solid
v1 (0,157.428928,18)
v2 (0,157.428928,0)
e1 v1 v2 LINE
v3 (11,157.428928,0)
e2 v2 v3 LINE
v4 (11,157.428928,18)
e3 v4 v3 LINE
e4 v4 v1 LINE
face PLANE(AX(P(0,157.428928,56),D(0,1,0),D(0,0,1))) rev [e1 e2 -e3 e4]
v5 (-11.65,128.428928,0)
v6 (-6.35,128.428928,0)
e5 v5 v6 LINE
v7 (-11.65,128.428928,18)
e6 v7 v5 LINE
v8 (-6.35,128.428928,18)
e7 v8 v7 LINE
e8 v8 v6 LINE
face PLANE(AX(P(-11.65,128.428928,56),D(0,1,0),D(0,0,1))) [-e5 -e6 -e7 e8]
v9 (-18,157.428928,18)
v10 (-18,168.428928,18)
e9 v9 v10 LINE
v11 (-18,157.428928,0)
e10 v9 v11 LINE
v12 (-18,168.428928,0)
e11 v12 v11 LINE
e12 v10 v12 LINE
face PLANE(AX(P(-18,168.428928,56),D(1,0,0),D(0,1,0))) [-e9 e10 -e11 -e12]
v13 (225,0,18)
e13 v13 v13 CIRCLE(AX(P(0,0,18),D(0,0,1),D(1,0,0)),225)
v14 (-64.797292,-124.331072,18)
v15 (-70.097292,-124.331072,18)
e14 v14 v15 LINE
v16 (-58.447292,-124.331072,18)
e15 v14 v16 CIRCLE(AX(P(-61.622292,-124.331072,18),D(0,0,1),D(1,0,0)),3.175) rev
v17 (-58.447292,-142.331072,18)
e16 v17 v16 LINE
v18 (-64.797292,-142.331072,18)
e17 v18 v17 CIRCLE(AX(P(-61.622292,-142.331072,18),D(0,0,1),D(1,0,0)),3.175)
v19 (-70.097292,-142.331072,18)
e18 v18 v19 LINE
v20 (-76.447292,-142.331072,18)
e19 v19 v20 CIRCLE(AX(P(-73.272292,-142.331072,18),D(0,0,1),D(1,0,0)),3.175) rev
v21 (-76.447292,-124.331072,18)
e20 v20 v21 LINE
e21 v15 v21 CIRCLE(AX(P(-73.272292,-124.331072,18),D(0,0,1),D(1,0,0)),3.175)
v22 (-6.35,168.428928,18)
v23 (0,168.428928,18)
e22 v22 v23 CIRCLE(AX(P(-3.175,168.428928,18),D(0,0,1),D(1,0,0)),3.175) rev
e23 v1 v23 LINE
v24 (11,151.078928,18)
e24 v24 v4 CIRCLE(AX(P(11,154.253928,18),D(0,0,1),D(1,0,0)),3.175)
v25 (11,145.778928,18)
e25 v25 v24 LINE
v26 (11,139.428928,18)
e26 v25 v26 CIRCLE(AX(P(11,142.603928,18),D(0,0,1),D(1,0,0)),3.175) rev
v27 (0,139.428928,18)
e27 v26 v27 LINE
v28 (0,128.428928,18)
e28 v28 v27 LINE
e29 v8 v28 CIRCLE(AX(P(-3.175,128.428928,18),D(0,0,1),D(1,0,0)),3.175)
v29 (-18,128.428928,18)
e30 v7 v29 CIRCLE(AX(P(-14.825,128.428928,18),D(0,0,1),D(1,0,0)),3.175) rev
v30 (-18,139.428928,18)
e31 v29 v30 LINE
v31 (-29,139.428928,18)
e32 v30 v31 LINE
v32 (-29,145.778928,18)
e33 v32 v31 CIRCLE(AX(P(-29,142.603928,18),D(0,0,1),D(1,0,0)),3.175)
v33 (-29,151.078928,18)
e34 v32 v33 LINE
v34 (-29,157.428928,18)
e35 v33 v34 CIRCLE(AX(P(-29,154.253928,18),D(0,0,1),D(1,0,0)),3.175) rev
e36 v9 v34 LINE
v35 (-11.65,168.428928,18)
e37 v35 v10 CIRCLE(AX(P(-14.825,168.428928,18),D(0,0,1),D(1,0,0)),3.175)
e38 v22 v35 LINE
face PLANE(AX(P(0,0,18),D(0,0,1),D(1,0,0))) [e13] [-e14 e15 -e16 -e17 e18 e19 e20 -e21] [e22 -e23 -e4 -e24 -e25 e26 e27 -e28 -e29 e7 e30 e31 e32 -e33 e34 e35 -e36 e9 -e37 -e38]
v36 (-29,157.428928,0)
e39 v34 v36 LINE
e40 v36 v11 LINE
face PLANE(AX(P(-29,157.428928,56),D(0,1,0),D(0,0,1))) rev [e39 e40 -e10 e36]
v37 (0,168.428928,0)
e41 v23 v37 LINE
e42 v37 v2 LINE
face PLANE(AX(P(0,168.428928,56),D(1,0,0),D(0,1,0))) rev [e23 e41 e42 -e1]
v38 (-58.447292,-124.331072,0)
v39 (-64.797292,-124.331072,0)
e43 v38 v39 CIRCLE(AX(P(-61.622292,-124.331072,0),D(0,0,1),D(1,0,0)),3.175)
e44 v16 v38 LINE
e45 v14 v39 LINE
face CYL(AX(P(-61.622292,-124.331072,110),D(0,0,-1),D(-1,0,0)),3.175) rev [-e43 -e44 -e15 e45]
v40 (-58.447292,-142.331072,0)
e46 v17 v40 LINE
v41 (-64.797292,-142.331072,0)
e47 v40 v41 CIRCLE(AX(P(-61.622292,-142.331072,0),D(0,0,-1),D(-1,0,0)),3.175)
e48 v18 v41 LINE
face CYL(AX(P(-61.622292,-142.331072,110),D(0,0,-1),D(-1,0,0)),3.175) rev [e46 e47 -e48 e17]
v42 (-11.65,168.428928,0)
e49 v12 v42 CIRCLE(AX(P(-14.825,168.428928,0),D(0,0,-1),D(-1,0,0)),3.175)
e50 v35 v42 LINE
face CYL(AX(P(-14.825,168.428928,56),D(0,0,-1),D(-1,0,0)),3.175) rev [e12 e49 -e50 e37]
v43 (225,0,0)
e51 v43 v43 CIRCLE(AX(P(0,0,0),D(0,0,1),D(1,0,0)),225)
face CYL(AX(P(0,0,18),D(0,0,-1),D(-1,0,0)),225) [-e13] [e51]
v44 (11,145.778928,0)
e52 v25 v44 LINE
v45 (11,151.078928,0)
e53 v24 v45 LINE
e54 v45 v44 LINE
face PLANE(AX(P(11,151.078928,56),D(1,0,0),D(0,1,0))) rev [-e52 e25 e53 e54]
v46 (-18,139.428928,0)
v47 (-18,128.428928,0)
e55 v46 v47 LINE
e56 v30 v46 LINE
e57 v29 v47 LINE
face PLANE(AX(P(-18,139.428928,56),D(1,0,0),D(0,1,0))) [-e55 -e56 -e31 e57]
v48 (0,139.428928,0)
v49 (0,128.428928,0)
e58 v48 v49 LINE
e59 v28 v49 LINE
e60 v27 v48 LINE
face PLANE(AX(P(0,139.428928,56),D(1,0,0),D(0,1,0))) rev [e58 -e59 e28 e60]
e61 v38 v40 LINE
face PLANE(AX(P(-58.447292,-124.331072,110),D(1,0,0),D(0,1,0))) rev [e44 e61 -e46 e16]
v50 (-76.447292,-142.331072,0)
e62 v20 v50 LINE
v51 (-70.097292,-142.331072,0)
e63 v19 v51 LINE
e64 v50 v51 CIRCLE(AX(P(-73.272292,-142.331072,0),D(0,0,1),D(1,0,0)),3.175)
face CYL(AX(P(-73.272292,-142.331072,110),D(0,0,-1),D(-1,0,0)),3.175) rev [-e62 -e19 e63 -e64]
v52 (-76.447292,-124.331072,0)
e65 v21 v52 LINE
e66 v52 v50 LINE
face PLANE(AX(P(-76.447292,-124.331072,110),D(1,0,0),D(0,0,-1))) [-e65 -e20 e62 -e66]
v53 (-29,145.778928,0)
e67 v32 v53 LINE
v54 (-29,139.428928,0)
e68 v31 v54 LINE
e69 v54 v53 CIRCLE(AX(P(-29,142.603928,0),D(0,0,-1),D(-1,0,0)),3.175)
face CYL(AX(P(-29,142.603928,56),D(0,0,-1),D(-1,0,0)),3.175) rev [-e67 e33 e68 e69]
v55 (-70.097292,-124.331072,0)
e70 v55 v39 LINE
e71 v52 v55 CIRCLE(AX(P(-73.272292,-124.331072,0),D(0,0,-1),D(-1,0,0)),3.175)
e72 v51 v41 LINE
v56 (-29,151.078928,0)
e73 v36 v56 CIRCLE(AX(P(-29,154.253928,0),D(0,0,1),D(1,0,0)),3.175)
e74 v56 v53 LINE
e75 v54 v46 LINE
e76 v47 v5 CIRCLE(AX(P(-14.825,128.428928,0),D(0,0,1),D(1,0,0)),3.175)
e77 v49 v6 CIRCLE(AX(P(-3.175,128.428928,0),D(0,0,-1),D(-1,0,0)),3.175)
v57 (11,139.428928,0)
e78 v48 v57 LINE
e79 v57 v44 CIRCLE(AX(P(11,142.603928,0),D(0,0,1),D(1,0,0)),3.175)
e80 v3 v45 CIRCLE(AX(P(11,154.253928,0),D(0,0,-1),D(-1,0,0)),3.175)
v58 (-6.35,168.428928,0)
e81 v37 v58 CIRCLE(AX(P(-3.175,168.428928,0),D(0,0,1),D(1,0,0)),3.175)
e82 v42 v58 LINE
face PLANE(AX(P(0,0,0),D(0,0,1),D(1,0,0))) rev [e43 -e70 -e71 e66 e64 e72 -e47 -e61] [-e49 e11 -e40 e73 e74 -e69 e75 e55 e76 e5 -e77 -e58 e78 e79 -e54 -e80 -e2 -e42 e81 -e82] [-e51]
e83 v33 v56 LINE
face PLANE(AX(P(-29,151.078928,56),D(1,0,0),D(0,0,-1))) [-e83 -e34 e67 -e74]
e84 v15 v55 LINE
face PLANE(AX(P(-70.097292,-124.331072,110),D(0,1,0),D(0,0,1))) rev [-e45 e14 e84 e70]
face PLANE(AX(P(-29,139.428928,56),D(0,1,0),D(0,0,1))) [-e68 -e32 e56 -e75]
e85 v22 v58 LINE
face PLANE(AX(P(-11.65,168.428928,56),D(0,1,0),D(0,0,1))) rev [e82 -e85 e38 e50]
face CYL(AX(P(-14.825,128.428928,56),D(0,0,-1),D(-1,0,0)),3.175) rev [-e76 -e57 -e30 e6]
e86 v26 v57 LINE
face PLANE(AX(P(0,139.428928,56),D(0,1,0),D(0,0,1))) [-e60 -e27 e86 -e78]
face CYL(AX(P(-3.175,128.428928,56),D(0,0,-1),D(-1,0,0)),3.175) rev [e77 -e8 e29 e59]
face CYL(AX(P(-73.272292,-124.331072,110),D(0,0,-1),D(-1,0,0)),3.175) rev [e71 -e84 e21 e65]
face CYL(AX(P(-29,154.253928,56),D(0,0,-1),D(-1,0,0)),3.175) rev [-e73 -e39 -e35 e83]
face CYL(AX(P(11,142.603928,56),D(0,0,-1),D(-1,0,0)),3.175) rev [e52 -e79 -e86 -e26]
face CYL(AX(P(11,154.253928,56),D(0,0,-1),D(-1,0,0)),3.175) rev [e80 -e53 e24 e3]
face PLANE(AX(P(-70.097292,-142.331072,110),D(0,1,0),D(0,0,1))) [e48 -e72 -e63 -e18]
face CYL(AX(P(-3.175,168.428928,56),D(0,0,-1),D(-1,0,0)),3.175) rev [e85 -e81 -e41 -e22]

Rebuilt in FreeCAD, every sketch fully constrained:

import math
import FreeCAD as App
import Part
import Sketcher

V = App.Vector
Q = App.Units.Quantity

doc = App.newDocument("Part")
body = doc.addObject("PartDesign::Body", "Body")

# Sketch on XY plane
sketch1 = body.newObject("Sketcher::SketchObject", "Sketch")
sketch1.AttachmentSupport = (doc.getObject("XY_Plane"), [""])
sketch1.MapMode = "FlatFace"
sketch1.addGeometry(Part.Circle(V(0, 0, 0), V(0, 0, 1), 225), False)
sketch1.addConstraint([
    Sketcher.Constraint("Coincident", 0, 3, -1, 1),
    Sketcher.Constraint("Diameter", 0, Q("450 mm")),
])
pad1 = body.newObject("PartDesign::Pad", "Pad")
pad1.Profile = sketch1
pad1.Length = 18

# Sketch on XY plane
sketch2 = body.newObject("Sketcher::SketchObject", "Sketch001")
sketch2.AttachmentSupport = (doc.getObject("XY_Plane"), [""])
sketch2.MapMode = "FlatFace"
sketch2.addGeometry([
    Part.LineSegment(V(-6.3, 168.4, 0), V(-11.7, 168.4, 0)),  # 0
    Part.ArcOfCircle(Part.Circle(V(-14.8, 168.4, 0), V(0, 0, 1), 3.2), math.radians(0), math.radians(180)),  # 1
    Part.LineSegment(V(-18, 168.4, 0), V(-18, 157.4, 0)),  # 2
    Part.LineSegment(V(-18, 157.4, 0), V(-29, 157.4, 0)),  # 3
    Part.ArcOfCircle(Part.Circle(V(-29, 154.3, 0), V(0, 0, 1), 3.2), math.radians(90), math.radians(270)),  # 4
    Part.LineSegment(V(-29, 151.1, 0), V(-29, 145.8, 0)),  # 5
    Part.ArcOfCircle(Part.Circle(V(-29, 142.6, 0), V(0, 0, 1), 3.2), math.radians(90), math.radians(270)),  # 6
    Part.LineSegment(V(-29, 139.4, 0), V(-18, 139.4, 0)),  # 7
    Part.LineSegment(V(-18, 139.4, 0), V(-18, 128.4, 0)),  # 8
    Part.ArcOfCircle(Part.Circle(V(-14.8, 128.4, 0), V(0, 0, 1), 3.2), math.radians(180), math.radians(360)),  # 9
    Part.LineSegment(V(-11.7, 128.4, 0), V(-6.3, 128.4, 0)),  # 10
    Part.ArcOfCircle(Part.Circle(V(-3.2, 128.4, 0), V(0, 0, 1), 3.2), math.radians(180), math.radians(360)),  # 11
    Part.LineSegment(V(0, 128.4, 0), V(0, 139.4, 0)),  # 12
    Part.LineSegment(V(0, 139.4, 0), V(11, 139.4, 0)),  # 13
    Part.ArcOfCircle(Part.Circle(V(11, 142.6, 0), V(0, 0, 1), 3.2), math.radians(-90), math.radians(90)),  # 14
    Part.LineSegment(V(11, 145.8, 0), V(11, 151.1, 0)),  # 15
    Part.ArcOfCircle(Part.Circle(V(11, 154.3, 0), V(0, 0, 1), 3.2), math.radians(-90), math.radians(90)),  # 16
    Part.LineSegment(V(11, 157.4, 0), V(0, 157.4, 0)),  # 17
    Part.LineSegment(V(0, 157.4, 0), V(0, 168.4, 0)),  # 18
    Part.ArcOfCircle(Part.Circle(V(-3.2, 168.4, 0), V(0, 0, 1), 3.2), math.radians(0), math.radians(180)),  # 19
], False)
sketch2.addConstraint([
    Sketcher.Constraint("Coincident", 0, 2, 1, 1),
    Sketcher.Constraint("Tangent", 1, 2, 2, 1),
    Sketcher.Constraint("Coincident", 2, 2, 3, 1),
    Sketcher.Constraint("Tangent", 3, 2, 4, 1),
    Sketcher.Constraint("Coincident", 4, 2, 5, 1),
    Sketcher.Constraint("Coincident", 5, 2, 6, 1),
    Sketcher.Constraint("Tangent", 6, 2, 7, 1),
    Sketcher.Constraint("Coincident", 7, 2, 8, 1),
    Sketcher.Constraint("Tangent", 8, 2, 9, 1),
    Sketcher.Constraint("Coincident", 9, 2, 10, 1),
    Sketcher.Constraint("Coincident", 10, 2, 11, 1),
    Sketcher.Constraint("Tangent", 11, 2, 12, 1),
    Sketcher.Constraint("Coincident", 12, 2, 13, 1),
    Sketcher.Constraint("Tangent", 13, 2, 14, 1),
    Sketcher.Constraint("Coincident", 14, 2, 15, 1),
    Sketcher.Constraint("Coincident", 15, 2, 16, 1),
    Sketcher.Constraint("Tangent", 16, 2, 17, 1),
    Sketcher.Constraint("Coincident", 17, 2, 18, 1),
    Sketcher.Constraint("Tangent", 18, 2, 19, 1),
    Sketcher.Constraint("Coincident", 19, 2, 0, 1),
    Sketcher.Constraint("Horizontal", 0),
    Sketcher.Constraint("Vertical", 2),
    Sketcher.Constraint("Horizontal", 3),
    Sketcher.Constraint("Vertical", 5),
    Sketcher.Constraint("Horizontal", 7),
    Sketcher.Constraint("Vertical", 8),
    Sketcher.Constraint("Horizontal", 10),
    Sketcher.Constraint("Vertical", 12),
    Sketcher.Constraint("Horizontal", 13),
    Sketcher.Constraint("Vertical", 15),
    Sketcher.Constraint("Horizontal", 17),
    Sketcher.Constraint("Vertical", 18),
    Sketcher.Constraint("Equal", 1, 4),
    Sketcher.Constraint("Equal", 4, 6),
    Sketcher.Constraint("Equal", 6, 9),
    Sketcher.Constraint("Equal", 9, 11),
    Sketcher.Constraint("Equal", 11, 14),
    Sketcher.Constraint("Equal", 14, 16),
    Sketcher.Constraint("Equal", 16, 19),
    Sketcher.Constraint("PointOnObject", 11, 2, -2),
    Sketcher.Constraint("PointOnObject", 17, 2, -2),
    Sketcher.Constraint("Horizontal", 9, 3, 11, 3),
    Sketcher.Constraint("Horizontal", 6, 3, 14, 3),
    Sketcher.Constraint("Horizontal", 4, 3, 16, 3),
    Sketcher.Constraint("Horizontal", 1, 3, 19, 3),
    Sketcher.Constraint("Horizontal", 19, 3, 0, 2),
    Sketcher.Constraint("Horizontal", 8, 2, 9, 2),
    Sketcher.Constraint("Vertical", 4, 3, 6, 3),
    Sketcher.Constraint("Vertical", 1, 3, 9, 3),
    Sketcher.Constraint("Vertical", 14, 3, 16, 3),
    Sketcher.Constraint("Vertical", 3, 2, 4, 2),
    Sketcher.Constraint("Vertical", 13, 2, 14, 2),
    Sketcher.Constraint("Equal", 7, 13),
    Sketcher.Constraint("Equal", 17, 2),
    Sketcher.Constraint("Equal", 10, 5),
    Sketcher.Constraint("Equal", 2, 8),
    Sketcher.Constraint("DistanceX", 3, 2, 3, 1, Q("11 mm")),
    Sketcher.Constraint("DistanceX", 0, 2, 0, 1, Q("5.3 mm")),
    Sketcher.Constraint("DistanceX", 4, 3, -1, 1, Q("29 mm")),
    Sketcher.Constraint("DistanceY", -1, 1, 1, 3, Q("168.428928 mm")),
])
pocket1 = body.newObject("PartDesign::Pocket", "Pocket")
pocket1.Profile = sketch2
pocket1.Length = 56
pocket1.Reversed = True

# Sketch on XY plane
sketch3 = body.newObject("Sketcher::SketchObject", "Sketch002")
sketch3.AttachmentSupport = (doc.getObject("XY_Plane"), [""])
sketch3.MapMode = "FlatFace"
sketch3.addGeometry([
    Part.LineSegment(V(-64.8, -124.3, 0), V(-70.1, -124.3, 0)),  # 0
    Part.ArcOfCircle(Part.Circle(V(-73.3, -124.3, 0), V(0, 0, 1), 3.2), math.radians(0), math.radians(180)),  # 1
    Part.LineSegment(V(-76.4, -124.3, 0), V(-76.4, -142.3, 0)),  # 2
    Part.ArcOfCircle(Part.Circle(V(-73.3, -142.3, 0), V(0, 0, 1), 3.2), math.radians(180), math.radians(360)),  # 3
    Part.LineSegment(V(-70.1, -142.3, 0), V(-64.8, -142.3, 0)),  # 4
    Part.ArcOfCircle(Part.Circle(V(-61.6, -142.3, 0), V(0, 0, 1), 3.2), math.radians(180), math.radians(360)),  # 5
    Part.LineSegment(V(-58.4, -142.3, 0), V(-58.4, -124.3, 0)),  # 6
    Part.ArcOfCircle(Part.Circle(V(-61.6, -124.3, 0), V(0, 0, 1), 3.2), math.radians(0), math.radians(180)),  # 7
], False)
sketch3.addConstraint([
    Sketcher.Constraint("Coincident", 0, 2, 1, 1),
    Sketcher.Constraint("Tangent", 1, 2, 2, 1),
    Sketcher.Constraint("Tangent", 2, 2, 3, 1),
    Sketcher.Constraint("Coincident", 3, 2, 4, 1),
    Sketcher.Constraint("Coincident", 4, 2, 5, 1),
    Sketcher.Constraint("Tangent", 5, 2, 6, 1),
    Sketcher.Constraint("Tangent", 6, 2, 7, 1),
    Sketcher.Constraint("Coincident", 7, 2, 0, 1),
    Sketcher.Constraint("Horizontal", 0),
    Sketcher.Constraint("Vertical", 2),
    Sketcher.Constraint("Horizontal", 4),
    Sketcher.Constraint("Vertical", 6),
    Sketcher.Constraint("Equal", 1, 3),
    Sketcher.Constraint("Equal", 3, 5),
    Sketcher.Constraint("Equal", 5, 7),
    Sketcher.Constraint("Horizontal", 3, 3, 5, 3),
    Sketcher.Constraint("Horizontal", 1, 3, 7, 3),
    Sketcher.Constraint("Horizontal", 7, 3, 0, 2),
    Sketcher.Constraint("Horizontal", 2, 2, 3, 2),
    Sketcher.Constraint("DistanceY", 2, 2, 2, 1, Q("18 mm")),
    Sketcher.Constraint("DistanceX", 0, 2, 0, 1, Q("5.3 mm")),
    Sketcher.Constraint("Radius", 1, Q("3.175 mm")),
    Sketcher.Constraint("DistanceX", 1, 3, -1, 1, Q("73.272292 mm")),
    Sketcher.Constraint("DistanceY", 1, 3, -1, 1, Q("124.331072 mm")),
])
pocket2 = body.newObject("PartDesign::Pocket", "Pocket001")
pocket2.Profile = sketch3
pocket2.Length = 110
pocket2.Reversed = True

doc.recompute()
